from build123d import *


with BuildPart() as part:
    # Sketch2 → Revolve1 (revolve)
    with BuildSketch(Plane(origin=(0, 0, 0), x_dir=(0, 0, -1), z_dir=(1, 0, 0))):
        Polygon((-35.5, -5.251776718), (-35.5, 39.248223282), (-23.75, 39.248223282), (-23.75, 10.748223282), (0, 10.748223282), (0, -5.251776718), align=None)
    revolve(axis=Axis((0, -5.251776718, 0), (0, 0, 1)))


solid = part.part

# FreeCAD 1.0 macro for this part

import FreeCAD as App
import Part
import Sketcher
from FreeCAD import Vector

doc = App.newDocument("Part")
body = doc.addObject("PartDesign::Body", "Body")

# Sketch on YZ plane
sketch1 = doc.addObject("Sketcher::SketchObject", "Sketch")
body.addObject(sketch1)
sketch1.AttachmentSupport = (doc.YZ_Plane, [""])
sketch1.MapMode = "FlatFace"
sketch1.addGeometry([
    Part.LineSegment(Vector(39, 36, 0), Vector(-5, 36, 0)),  # 0
    Part.LineSegment(Vector(-5, 36, 0), Vector(-5, 0, 0)),  # 1
    Part.LineSegment(Vector(-5, 0, 0), Vector(11, 0, 0)),  # 2
    Part.LineSegment(Vector(11, 0, 0), Vector(11, 24, 0)),  # 3
    Part.LineSegment(Vector(11, 24, 0), Vector(39, 24, 0)),  # 4
    Part.LineSegment(Vector(39, 24, 0), Vector(39, 36, 0)),  # 5
], False)
sketch1.addGeometry(Part.LineSegment(Vector(-5, 0, 0), Vector(-5, 36, 0)), True)  # axis
sketch1.addConstraint([
    Sketcher.Constraint("Coincident", 0, 2, 1, 1),
    Sketcher.Constraint("Coincident", 1, 2, 2, 1),
    Sketcher.Constraint("Coincident", 2, 2, 3, 1),
    Sketcher.Constraint("Coincident", 3, 2, 4, 1),
    Sketcher.Constraint("Coincident", 4, 2, 5, 1),
    Sketcher.Constraint("Coincident", 5, 2, 0, 1),
    Sketcher.Constraint("Horizontal", 0),
    Sketcher.Constraint("Vertical", 1),
    Sketcher.Constraint("Horizontal", 2),
    Sketcher.Constraint("Vertical", 3),
    Sketcher.Constraint("Horizontal", 4),
    Sketcher.Constraint("Vertical", 5),
    Sketcher.Constraint("Vertical", 6),
    Sketcher.Constraint("Coincident", 6, 1, 1, 2),
    Sketcher.Constraint("PointOnObject", 1, 2, -1),
    Sketcher.Constraint("Horizontal", 5, 2, 6, 2),
    Sketcher.Constraint("DistanceX", 2, 1, 2, 2, 16.0),
    Sketcher.Constraint("DistanceX", 0, 2, 0, 1, 44.5),
    Sketcher.Constraint("DistanceY", 1, 2, 1, 1, 35.5),
    Sketcher.Constraint("DistanceY", 3, 1, 3, 2, 23.75),
    Sketcher.Constraint("DistanceX", 0, 2, -1, 1, 5.251777),
])
revolution = doc.addObject("PartDesign::Revolution", "Revolution")
body.addObject(revolution)
revolution.Profile = sketch1
revolution.ReferenceAxis = (sketch1, ["Axis0"])
revolution.Angle = 360

doc.recompute()
